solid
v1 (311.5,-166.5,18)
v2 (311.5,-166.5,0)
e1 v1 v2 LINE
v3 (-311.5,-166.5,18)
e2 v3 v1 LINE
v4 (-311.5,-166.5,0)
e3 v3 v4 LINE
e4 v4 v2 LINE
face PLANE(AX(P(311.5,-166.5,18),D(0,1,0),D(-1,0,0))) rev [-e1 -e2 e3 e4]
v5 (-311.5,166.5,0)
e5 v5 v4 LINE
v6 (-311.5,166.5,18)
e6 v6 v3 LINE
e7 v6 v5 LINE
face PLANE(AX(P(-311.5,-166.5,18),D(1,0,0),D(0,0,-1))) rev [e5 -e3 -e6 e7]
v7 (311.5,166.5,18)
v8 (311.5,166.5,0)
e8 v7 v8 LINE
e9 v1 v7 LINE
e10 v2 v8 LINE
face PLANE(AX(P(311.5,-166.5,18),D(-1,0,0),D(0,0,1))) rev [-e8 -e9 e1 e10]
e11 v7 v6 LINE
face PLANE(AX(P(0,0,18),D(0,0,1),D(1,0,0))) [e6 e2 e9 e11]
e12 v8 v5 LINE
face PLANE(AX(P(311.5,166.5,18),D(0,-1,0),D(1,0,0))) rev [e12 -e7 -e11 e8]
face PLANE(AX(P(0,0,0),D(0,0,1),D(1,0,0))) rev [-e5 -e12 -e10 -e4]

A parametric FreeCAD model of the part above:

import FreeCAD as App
import Part
import Sketcher

V = App.Vector


def add_polygon(sketch, points):
    """Adds a closed chain of lines whose ends are joined by coincident constraints."""
    first, n = sketch.GeometryCount, len(points)
    for a, b in zip(points, points[1:] + points[:1]):
        sketch.addGeometry(Part.LineSegment(App.Vector(*a, 0), App.Vector(*b, 0)), False)
    for i in range(n):
        sketch.addConstraint(Sketcher.Constraint("Coincident", first + i, 2, first + (i + 1) % n, 1))

doc = App.newDocument("Part")
body = doc.addObject("PartDesign::Body", "Body")

sketch1 = body.newObject("Sketcher::SketchObject", "Sketch")
sketch1.AttachmentSupport = (doc.getObject("XY_Plane"), [""])
sketch1.MapMode = "FlatFace"
add_polygon(sketch1, [(-312, 166), (-312, -166), (312, -166), (312, 166)])
sketch1.addConstraint([
    Sketcher.Constraint("Vertical", 0),
    Sketcher.Constraint("Horizontal", 1),
    Sketcher.Constraint("Vertical", 2),
    Sketcher.Constraint("Horizontal", 3),
    Sketcher.Constraint("Symmetric", 0, 2, 2, 2, -1, 1),
    Sketcher.Constraint("DistanceX", 1, 1, 1, 2, 623.0),
    Sketcher.Constraint("DistanceY", 0, 2, 0, 1, 333.0),
])
pad1 = body.newObject("PartDesign::Pad", "Pad")
pad1.Profile = sketch1
pad1.Length = 18

doc.recompute()
